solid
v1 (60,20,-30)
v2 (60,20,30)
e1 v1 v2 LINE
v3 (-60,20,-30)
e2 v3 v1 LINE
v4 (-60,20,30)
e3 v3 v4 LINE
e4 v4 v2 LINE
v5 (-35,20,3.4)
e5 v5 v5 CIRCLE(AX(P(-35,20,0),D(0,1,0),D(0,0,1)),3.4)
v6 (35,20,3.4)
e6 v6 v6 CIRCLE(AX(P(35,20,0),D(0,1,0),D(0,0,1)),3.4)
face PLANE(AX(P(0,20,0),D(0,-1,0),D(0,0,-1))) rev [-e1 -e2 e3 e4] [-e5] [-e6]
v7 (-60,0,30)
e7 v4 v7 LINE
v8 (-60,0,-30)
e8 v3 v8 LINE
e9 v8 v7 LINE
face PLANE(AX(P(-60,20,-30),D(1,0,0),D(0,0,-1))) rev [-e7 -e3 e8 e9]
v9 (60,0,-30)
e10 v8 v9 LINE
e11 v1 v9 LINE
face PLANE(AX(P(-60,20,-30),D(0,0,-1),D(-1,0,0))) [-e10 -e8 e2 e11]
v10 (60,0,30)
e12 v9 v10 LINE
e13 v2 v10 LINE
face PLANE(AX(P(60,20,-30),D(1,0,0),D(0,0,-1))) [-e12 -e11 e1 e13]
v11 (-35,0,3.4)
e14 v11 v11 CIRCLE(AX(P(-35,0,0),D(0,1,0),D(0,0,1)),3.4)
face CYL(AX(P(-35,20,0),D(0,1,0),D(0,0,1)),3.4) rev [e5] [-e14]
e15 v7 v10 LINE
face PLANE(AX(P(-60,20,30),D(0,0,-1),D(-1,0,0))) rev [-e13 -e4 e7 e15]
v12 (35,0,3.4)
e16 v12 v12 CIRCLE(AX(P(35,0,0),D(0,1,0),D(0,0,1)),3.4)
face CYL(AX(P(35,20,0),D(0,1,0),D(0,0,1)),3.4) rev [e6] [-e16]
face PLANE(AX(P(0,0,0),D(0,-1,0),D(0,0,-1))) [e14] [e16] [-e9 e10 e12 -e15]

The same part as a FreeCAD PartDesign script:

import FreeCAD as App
import Part
import Sketcher
Q = App.Units.Quantity

doc = App.newDocument("Part")
body = doc.addObject("PartDesign::Body", "Body")

sketch1 = body.newObject("Sketcher::SketchObject", "Sketch")
sketch1.AttachmentSupport = (doc.getObject("XZ_Plane"), [""])
sketch1.MapMode = "FlatFace"
sketch1.addGeometry([
    Part.LineSegment(App.Vector(-60, -30, 0), App.Vector(-60, 30, 0)),
    Part.LineSegment(App.Vector(-60, 30, 0), App.Vector(60, 30, 0)),
    Part.LineSegment(App.Vector(60, 30, 0), App.Vector(60, -30, 0)),
    Part.LineSegment(App.Vector(60, -30, 0), App.Vector(-60, -30, 0)),
], False)
sketch1.addConstraint([
    Sketcher.Constraint("Coincident", 0, 2, 1, 1),
    Sketcher.Constraint("Coincident", 1, 2, 2, 1),
    Sketcher.Constraint("Coincident", 2, 2, 3, 1),
    Sketcher.Constraint("Coincident", 3, 2, 0, 1),
    Sketcher.Constraint("Vertical", 0),
    Sketcher.Constraint("Horizontal", 1),
    Sketcher.Constraint("Vertical", 2),
    Sketcher.Constraint("Horizontal", 3),
    Sketcher.Constraint("Symmetric", 0, 2, 2, 2, -1, 1),
    Sketcher.Constraint("DistanceX", 1, 1, 1, 2, Q("120 mm")),
    Sketcher.Constraint("DistanceY", 0, 1, 0, 2, Q("60 mm")),
])
pad1 = body.newObject("PartDesign::Pad", "Pad")
pad1.Profile = sketch1
pad1.Length = 20
pad1.Reversed = True

sketch2 = body.newObject("Sketcher::SketchObject", "Sketch001")
sketch2.AttachmentSupport = (doc.getObject("XZ_Plane"), [""])
sketch2.MapMode = "FlatFace"
sketch2.AttachmentOffset = App.Placement(App.Vector(0, 0, -20), App.Rotation())
sketch2.addGeometry([
    Part.Circle(App.Vector(-35, 0, 0), App.Vector(0, 0, 1), 3.4),
    Part.Circle(App.Vector(35, 0, 0), App.Vector(0, 0, 1), 3.4),
], False)
sketch2.addConstraint([
    Sketcher.Constraint("Equal", 0, 1),
    Sketcher.Constraint("Symmetric", 0, 3, 1, 3, -1, 1),
    Sketcher.Constraint("PointOnObject", 0, 3, -1),
    Sketcher.Constraint("Diameter", 0, Q("6.8 mm")),
    Sketcher.Constraint("DistanceX", 0, 3, -1, 1, Q("35 mm")),
])
doc.recompute()
hole = body.newObject("PartDesign::Hole", "Hole")
hole.Profile = sketch2
hole.ThreadType = "None"
hole.Diameter = 6.8
hole.DepthType = "ThroughAll"
hole.Reversed = True

doc.recompute()
